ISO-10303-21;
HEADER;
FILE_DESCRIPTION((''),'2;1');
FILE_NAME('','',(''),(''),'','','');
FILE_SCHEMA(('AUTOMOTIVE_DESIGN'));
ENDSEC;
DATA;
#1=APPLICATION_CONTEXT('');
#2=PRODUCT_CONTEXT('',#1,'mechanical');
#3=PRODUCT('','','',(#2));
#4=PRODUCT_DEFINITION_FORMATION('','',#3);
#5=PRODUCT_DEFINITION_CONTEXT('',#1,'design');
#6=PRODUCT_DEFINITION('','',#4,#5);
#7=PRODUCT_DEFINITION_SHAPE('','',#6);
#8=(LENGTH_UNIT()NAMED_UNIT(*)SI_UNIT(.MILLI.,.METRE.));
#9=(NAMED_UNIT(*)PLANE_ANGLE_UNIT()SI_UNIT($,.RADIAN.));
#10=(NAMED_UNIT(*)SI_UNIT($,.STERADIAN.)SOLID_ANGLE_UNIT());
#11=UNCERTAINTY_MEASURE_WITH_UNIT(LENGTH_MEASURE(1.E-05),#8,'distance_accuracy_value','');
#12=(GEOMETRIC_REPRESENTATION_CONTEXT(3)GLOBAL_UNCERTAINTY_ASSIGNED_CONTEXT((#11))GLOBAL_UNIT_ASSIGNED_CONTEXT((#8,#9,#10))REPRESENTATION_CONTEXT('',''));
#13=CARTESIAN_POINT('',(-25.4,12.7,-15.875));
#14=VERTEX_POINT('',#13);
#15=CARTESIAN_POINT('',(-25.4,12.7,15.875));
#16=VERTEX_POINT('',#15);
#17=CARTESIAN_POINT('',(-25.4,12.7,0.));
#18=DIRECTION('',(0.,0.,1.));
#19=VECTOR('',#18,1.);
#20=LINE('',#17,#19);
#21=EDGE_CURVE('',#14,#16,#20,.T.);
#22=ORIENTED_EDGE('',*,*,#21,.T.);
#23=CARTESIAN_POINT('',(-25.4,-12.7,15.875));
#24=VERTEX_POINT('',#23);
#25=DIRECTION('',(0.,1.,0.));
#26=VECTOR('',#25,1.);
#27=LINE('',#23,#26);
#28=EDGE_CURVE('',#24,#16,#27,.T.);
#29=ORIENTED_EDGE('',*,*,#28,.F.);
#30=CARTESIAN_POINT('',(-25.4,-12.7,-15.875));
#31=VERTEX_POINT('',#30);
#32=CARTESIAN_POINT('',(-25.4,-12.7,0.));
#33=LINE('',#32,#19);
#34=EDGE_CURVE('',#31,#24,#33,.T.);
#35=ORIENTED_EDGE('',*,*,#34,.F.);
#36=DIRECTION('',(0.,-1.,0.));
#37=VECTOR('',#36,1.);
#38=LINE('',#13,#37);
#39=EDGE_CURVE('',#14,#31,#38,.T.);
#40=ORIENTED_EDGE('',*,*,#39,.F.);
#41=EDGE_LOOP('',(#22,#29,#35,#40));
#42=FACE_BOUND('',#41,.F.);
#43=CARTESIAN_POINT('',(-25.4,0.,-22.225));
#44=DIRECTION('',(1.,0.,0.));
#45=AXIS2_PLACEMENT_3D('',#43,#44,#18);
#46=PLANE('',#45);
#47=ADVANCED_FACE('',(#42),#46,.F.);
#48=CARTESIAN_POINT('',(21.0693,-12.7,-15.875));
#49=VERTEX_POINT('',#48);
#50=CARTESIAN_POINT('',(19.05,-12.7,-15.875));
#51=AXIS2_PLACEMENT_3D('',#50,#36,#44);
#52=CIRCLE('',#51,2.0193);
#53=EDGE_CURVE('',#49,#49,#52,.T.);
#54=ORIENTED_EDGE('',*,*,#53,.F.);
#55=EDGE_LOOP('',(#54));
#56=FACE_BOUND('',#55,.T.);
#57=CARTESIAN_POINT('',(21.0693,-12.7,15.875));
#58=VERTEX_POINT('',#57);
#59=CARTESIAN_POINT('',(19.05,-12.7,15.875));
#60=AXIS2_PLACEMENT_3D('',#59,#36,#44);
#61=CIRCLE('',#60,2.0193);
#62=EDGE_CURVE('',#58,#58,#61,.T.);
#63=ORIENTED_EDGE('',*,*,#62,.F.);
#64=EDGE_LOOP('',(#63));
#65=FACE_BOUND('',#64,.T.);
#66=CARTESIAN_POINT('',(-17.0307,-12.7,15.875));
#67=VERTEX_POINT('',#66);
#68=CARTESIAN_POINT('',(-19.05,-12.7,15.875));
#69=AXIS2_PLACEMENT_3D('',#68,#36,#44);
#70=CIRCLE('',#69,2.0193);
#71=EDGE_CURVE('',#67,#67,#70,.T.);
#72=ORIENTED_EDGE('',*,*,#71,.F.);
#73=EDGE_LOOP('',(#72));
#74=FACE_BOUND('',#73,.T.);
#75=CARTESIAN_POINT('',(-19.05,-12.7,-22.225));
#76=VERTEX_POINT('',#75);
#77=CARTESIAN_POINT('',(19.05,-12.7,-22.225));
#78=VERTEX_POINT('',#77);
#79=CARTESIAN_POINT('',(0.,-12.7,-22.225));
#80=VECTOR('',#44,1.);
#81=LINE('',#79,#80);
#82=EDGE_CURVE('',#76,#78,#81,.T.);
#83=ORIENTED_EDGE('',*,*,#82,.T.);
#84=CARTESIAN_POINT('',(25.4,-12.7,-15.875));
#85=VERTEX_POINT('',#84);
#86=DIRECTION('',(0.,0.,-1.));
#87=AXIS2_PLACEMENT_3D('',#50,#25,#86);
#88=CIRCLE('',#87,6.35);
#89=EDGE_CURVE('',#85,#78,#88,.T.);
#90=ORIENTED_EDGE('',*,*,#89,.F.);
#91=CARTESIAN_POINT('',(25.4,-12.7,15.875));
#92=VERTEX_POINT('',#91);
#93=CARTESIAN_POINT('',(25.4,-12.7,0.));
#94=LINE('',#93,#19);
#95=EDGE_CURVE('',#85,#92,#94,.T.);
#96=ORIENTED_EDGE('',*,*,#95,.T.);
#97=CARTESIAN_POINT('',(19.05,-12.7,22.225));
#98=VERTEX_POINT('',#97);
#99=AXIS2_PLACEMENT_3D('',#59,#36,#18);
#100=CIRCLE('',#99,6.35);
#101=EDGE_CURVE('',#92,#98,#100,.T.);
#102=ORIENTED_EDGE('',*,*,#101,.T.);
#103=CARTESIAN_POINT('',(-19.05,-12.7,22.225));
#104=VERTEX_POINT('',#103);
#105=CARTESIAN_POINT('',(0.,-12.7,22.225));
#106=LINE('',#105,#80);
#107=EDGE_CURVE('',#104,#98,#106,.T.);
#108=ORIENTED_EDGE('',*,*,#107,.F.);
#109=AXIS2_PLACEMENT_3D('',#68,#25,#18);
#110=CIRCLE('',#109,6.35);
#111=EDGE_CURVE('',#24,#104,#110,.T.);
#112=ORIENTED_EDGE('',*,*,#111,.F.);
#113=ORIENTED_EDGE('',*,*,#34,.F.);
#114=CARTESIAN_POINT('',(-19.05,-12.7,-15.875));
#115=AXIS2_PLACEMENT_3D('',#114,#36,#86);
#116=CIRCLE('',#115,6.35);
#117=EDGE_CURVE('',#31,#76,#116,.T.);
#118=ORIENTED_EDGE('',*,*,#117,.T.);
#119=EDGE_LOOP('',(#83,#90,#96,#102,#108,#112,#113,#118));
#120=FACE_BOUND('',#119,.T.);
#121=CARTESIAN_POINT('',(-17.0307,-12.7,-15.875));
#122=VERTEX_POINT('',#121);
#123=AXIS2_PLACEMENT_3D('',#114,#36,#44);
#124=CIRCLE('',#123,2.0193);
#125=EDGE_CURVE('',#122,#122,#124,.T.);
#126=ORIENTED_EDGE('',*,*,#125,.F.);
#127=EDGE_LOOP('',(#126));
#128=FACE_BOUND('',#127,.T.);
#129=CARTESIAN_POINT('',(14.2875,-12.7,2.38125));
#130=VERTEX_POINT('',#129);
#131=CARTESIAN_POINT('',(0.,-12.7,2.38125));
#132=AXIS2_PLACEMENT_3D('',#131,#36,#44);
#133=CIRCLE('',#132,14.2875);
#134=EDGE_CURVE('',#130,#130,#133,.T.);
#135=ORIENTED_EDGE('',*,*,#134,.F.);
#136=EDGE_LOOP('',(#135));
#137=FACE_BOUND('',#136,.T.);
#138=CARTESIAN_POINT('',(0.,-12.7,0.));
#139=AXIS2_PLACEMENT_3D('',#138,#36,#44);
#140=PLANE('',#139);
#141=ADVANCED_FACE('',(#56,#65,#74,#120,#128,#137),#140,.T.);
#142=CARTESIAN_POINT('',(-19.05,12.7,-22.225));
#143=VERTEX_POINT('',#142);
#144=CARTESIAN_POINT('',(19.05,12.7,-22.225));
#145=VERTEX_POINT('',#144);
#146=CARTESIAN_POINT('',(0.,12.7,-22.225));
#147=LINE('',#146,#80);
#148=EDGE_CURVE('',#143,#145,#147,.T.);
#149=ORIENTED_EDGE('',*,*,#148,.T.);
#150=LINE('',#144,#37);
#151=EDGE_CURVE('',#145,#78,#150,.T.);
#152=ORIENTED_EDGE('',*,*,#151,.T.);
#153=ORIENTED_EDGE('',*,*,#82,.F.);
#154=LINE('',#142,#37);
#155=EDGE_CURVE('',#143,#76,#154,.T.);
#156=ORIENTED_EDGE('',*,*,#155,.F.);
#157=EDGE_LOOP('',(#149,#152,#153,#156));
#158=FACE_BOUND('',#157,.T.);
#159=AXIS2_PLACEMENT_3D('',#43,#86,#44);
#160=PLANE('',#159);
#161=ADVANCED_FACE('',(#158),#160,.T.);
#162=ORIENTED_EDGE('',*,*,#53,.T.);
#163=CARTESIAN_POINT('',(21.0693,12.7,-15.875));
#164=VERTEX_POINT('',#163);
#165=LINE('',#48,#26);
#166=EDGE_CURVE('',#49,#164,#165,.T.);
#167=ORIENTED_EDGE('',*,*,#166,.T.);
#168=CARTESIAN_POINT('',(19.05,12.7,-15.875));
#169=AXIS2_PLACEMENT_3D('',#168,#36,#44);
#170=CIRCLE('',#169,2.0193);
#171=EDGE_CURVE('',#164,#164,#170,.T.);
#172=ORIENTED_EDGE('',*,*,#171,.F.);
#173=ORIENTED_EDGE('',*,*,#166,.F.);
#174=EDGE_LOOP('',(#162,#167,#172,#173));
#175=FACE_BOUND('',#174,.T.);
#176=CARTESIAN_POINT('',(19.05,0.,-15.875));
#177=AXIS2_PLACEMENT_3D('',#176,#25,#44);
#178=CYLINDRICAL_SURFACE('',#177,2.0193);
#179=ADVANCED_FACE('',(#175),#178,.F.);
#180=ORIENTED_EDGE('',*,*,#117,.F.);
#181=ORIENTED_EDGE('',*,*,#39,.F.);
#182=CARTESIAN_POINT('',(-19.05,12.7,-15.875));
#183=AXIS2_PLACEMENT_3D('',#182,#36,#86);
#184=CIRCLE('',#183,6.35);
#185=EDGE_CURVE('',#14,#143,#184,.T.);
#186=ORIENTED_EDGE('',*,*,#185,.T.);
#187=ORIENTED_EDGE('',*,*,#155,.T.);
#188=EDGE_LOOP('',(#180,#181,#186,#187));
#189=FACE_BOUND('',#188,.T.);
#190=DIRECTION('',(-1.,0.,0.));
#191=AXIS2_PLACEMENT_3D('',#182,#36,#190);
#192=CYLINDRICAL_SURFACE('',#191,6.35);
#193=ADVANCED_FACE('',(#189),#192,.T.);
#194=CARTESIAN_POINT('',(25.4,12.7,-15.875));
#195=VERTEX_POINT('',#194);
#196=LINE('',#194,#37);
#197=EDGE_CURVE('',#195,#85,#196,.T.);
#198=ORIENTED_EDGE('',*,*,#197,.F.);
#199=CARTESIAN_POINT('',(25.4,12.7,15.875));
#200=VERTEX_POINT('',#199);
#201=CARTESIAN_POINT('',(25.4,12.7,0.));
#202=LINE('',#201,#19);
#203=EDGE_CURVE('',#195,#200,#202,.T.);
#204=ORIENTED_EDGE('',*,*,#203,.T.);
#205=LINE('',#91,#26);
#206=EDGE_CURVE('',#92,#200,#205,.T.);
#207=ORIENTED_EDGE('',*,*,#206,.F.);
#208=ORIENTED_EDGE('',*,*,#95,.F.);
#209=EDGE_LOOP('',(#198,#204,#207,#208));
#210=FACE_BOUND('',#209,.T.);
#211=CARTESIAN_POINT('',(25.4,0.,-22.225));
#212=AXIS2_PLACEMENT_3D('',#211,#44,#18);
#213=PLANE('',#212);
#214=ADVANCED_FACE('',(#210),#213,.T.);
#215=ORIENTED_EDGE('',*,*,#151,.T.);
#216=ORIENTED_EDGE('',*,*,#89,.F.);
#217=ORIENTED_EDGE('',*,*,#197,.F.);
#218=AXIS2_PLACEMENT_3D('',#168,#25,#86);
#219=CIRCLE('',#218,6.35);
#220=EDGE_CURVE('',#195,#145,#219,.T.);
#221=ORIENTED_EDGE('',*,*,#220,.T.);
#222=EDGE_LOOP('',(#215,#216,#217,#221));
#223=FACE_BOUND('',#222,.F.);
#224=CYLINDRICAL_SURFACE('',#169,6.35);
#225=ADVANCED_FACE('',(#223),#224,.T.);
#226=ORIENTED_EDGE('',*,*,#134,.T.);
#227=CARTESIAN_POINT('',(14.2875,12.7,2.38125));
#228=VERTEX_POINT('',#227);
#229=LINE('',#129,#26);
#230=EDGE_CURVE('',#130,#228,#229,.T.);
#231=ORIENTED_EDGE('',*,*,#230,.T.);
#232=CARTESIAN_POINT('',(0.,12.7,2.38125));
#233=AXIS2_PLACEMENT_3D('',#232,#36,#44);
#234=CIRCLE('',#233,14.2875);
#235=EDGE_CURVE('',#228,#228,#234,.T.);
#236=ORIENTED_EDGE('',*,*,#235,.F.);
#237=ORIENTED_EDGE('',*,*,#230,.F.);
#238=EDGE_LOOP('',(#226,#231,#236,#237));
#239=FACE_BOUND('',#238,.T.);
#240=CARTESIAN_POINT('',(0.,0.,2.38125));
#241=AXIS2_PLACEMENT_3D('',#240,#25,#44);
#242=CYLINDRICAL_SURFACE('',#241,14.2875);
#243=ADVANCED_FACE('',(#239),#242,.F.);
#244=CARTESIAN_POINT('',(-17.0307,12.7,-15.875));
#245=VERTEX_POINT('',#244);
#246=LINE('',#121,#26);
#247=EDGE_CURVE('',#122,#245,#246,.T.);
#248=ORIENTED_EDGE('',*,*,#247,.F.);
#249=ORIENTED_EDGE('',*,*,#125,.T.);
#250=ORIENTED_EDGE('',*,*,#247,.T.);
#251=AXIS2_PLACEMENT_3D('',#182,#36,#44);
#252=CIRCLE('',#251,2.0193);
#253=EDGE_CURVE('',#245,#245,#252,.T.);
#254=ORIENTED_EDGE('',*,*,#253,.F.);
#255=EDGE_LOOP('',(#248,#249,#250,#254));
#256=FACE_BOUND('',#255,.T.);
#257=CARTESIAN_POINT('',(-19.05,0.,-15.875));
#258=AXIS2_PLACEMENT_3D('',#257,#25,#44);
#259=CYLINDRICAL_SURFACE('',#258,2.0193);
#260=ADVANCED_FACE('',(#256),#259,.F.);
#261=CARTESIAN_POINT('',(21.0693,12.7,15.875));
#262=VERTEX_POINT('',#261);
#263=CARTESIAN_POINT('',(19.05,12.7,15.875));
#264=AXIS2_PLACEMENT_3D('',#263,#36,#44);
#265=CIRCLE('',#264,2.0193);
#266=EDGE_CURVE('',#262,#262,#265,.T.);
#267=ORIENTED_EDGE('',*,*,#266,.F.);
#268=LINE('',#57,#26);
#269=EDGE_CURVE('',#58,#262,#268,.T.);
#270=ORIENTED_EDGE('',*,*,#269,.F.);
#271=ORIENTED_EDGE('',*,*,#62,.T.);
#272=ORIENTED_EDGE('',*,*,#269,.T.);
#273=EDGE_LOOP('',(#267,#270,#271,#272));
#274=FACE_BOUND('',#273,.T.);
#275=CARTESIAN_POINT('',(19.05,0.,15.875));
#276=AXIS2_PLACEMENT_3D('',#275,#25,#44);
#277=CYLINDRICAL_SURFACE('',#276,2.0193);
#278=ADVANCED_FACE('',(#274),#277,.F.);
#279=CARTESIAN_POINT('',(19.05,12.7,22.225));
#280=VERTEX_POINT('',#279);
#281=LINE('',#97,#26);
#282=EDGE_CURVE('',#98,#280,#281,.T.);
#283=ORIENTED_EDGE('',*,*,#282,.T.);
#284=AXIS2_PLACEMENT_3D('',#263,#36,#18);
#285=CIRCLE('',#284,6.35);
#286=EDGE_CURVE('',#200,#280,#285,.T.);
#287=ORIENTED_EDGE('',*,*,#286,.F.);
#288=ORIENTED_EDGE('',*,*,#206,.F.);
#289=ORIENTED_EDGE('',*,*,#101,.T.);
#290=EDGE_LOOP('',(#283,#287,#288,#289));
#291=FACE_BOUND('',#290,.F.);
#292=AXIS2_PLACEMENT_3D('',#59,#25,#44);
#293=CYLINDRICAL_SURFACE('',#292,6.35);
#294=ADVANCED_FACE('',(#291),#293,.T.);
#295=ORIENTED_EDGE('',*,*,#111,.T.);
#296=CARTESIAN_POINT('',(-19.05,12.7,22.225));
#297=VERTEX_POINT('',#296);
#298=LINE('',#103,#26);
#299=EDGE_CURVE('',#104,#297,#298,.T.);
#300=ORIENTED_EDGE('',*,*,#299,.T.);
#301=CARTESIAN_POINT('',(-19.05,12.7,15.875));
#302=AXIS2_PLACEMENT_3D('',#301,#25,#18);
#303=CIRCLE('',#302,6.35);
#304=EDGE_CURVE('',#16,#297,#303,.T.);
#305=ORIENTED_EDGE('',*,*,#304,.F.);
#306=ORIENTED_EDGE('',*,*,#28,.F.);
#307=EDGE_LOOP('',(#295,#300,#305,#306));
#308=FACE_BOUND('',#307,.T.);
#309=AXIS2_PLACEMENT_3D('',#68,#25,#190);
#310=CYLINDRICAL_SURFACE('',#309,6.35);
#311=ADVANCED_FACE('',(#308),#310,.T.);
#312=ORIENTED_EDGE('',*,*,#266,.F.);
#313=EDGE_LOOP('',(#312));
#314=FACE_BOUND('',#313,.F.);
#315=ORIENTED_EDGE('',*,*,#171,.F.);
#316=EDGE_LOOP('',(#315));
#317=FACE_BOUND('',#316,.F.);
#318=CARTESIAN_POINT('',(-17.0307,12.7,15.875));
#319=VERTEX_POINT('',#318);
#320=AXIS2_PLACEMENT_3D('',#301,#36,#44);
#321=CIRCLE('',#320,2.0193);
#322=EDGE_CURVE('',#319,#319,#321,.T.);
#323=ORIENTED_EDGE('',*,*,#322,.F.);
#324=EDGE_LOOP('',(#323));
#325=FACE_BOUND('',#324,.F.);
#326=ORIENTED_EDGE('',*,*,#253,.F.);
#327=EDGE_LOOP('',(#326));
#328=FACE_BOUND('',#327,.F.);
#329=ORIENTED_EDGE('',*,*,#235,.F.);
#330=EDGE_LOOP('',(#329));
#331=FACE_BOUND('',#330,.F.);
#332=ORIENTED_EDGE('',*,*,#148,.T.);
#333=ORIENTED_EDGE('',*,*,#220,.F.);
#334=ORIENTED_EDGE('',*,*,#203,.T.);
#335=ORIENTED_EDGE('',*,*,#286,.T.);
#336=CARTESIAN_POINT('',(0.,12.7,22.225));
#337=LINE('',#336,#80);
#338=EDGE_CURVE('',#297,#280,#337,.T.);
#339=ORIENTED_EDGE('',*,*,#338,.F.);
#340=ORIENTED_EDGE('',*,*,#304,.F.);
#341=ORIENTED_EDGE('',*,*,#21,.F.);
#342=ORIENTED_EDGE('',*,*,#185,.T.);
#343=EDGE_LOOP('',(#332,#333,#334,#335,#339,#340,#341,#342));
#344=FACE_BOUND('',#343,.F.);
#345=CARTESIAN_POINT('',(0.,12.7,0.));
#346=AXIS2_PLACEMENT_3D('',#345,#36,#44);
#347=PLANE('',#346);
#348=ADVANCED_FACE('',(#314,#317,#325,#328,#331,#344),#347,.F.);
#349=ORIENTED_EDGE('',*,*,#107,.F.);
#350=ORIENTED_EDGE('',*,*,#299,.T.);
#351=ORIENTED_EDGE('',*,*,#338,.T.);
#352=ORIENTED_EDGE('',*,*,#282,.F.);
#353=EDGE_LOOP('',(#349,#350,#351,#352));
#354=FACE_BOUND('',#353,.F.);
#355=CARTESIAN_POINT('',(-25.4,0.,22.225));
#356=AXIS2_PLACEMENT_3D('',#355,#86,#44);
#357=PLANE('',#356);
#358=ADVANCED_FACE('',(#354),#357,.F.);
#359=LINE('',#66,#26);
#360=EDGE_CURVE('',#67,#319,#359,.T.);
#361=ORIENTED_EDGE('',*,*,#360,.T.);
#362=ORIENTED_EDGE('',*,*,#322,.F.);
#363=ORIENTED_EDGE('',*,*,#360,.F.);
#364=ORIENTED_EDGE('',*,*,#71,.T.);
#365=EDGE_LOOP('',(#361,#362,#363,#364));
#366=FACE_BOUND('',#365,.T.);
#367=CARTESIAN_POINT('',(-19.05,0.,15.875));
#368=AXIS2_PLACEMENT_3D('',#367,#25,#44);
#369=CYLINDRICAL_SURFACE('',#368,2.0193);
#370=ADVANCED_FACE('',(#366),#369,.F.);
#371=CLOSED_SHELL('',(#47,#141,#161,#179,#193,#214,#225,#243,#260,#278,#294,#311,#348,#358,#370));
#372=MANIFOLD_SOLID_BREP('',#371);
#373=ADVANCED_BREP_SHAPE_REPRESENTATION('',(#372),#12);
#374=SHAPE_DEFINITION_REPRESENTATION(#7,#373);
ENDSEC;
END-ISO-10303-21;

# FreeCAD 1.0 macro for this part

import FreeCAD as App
import Part
import Sketcher

V = App.Vector
Q = App.Units.Quantity


def edges_at(feature, points):
    """Names of the edges that pass closest to the given points."""
    edges = feature.Shape.Edges
    near = lambda p: min(range(len(edges)), key=lambda i: edges[i].distToShape(Part.Vertex(*p))[0])
    return sorted({f"Edge{near(p) + 1}" for p in points})


def add_polygon(sketch, points):
    """Adds a closed chain of lines whose ends are joined by coincident constraints."""
    first, n = sketch.GeometryCount, len(points)
    for a, b in zip(points, points[1:] + points[:1]):
        sketch.addGeometry(Part.LineSegment(App.Vector(*a, 0), App.Vector(*b, 0)), False)
    for i in range(n):
        sketch.addConstraint(Sketcher.Constraint("Coincident", first + i, 2, first + (i + 1) % n, 1))

doc = App.newDocument("Part")
params = doc.addObject("Spreadsheet::Sheet", "Params")
for row, (alias, value) in enumerate([
    ("sketch1_width", "2 in"),
    ("sketch1_diameter", "0.159 in"),
    ("sketch1_diameter2", "1.125 in"),
    ("sketch1_height", "1.75 in"),
    ("pad1_length", "1 in"),
    ("fillet_radius", "0.25 in"),
], start=1):
    params.set(f"A{row}", alias)
    params.set(f"B{row}", "=" + value)
    params.setAlias(f"B{row}", alias)

body = doc.addObject("PartDesign::Body", "Body")

sketch1 = body.newObject("Sketcher::SketchObject", "Sketch")
sketch1.AttachmentSupport = (doc.getObject("XZ_Plane"), [""])
sketch1.MapMode = "FlatFace"
add_polygon(sketch1, [(-25.4, 22.2), (-25.4, -22.2), (25.4, -22.2), (25.4, 22.2)])
sketch1.addGeometry(Part.Circle(V(-19.1, -15.9, 0), V(0, 0, 1), 2), False)
sketch1.addGeometry(Part.Circle(V(19.1, -15.9, 0), V(0, 0, 1), 2), False)
sketch1.addGeometry(Part.Circle(V(-19.1, 15.9, 0), V(0, 0, 1), 2), False)
sketch1.addGeometry(Part.Circle(V(0, 2.4, 0), V(0, 0, 1), 14.3), False)
sketch1.addGeometry(Part.Circle(V(19.1, 15.9, 0), V(0, 0, 1), 2), False)
sketch1.addConstraint(Sketcher.Constraint("Vertical", 0))
sketch1.addConstraint(Sketcher.Constraint("Horizontal", 1))
sketch1.addConstraint(Sketcher.Constraint("Vertical", 2))
sketch1.addConstraint(Sketcher.Constraint("Horizontal", 3))
sketch1.addConstraint(Sketcher.Constraint("Equal", 4, 5))
sketch1.addConstraint(Sketcher.Constraint("Equal", 5, 6))
sketch1.addConstraint(Sketcher.Constraint("Equal", 6, 8))
sketch1.addConstraint(Sketcher.Constraint("Symmetric", 5, 3, 6, 3, -1, 1))
sketch1.addConstraint(Sketcher.Constraint("Symmetric", 4, 3, 8, 3, -1, 1))
sketch1.addConstraint(Sketcher.Constraint("Symmetric", 0, 2, 2, 2, -1, 1))
sketch1.addConstraint(Sketcher.Constraint("Symmetric", 4, 3, 5, 3, -2))
sketch1.addConstraint(Sketcher.Constraint("PointOnObject", 7, 3, -2))
sketch1.addConstraint(Sketcher.Constraint("DistanceX", 1, 1, 1, 2, Q("2 in")))
sketch1.addConstraint(Sketcher.Constraint("Diameter", 4, Q("0.159 in")))
sketch1.addConstraint(Sketcher.Constraint("Diameter", 7, Q("1.125 in")))
sketch1.addConstraint(Sketcher.Constraint("DistanceY", 0, 2, 0, 1, Q("1.75 in")))
sketch1.addConstraint(Sketcher.Constraint("DistanceX", 4, 3, 5, 3, Q("1.5 in")))
sketch1.addConstraint(Sketcher.Constraint("DistanceY", 0, 2, 6, 3, Q("1.5 in")))
sketch1.addConstraint(Sketcher.Constraint("DistanceY", -1, 1, 7, 3, Q("0.09375 in")))
sketch1.setExpression("Constraints[16]", "Params.sketch1_width")
sketch1.setExpression("Constraints[17]", "Params.sketch1_diameter")
sketch1.setExpression("Constraints[18]", "Params.sketch1_diameter2")
sketch1.setExpression("Constraints[19]", "Params.sketch1_height")
pad1 = body.newObject("PartDesign::Pad", "Pad")
pad1.Profile = sketch1
pad1.setExpression("Length", "Params.pad1_length")
pad1.Midplane = True
doc.recompute()

fillet = body.newObject("PartDesign::Fillet", "Fillet")
fillet.Base = (pad1, edges_at(pad1, [
    (25.4, 0, -22.225),
    (25.4, 0, 22.225),
    (-25.4, 0, 22.225),
    (-25.4, 0, -22.225),
]))
fillet.setExpression("Radius", "Params.fillet_radius")

doc.recompute()
